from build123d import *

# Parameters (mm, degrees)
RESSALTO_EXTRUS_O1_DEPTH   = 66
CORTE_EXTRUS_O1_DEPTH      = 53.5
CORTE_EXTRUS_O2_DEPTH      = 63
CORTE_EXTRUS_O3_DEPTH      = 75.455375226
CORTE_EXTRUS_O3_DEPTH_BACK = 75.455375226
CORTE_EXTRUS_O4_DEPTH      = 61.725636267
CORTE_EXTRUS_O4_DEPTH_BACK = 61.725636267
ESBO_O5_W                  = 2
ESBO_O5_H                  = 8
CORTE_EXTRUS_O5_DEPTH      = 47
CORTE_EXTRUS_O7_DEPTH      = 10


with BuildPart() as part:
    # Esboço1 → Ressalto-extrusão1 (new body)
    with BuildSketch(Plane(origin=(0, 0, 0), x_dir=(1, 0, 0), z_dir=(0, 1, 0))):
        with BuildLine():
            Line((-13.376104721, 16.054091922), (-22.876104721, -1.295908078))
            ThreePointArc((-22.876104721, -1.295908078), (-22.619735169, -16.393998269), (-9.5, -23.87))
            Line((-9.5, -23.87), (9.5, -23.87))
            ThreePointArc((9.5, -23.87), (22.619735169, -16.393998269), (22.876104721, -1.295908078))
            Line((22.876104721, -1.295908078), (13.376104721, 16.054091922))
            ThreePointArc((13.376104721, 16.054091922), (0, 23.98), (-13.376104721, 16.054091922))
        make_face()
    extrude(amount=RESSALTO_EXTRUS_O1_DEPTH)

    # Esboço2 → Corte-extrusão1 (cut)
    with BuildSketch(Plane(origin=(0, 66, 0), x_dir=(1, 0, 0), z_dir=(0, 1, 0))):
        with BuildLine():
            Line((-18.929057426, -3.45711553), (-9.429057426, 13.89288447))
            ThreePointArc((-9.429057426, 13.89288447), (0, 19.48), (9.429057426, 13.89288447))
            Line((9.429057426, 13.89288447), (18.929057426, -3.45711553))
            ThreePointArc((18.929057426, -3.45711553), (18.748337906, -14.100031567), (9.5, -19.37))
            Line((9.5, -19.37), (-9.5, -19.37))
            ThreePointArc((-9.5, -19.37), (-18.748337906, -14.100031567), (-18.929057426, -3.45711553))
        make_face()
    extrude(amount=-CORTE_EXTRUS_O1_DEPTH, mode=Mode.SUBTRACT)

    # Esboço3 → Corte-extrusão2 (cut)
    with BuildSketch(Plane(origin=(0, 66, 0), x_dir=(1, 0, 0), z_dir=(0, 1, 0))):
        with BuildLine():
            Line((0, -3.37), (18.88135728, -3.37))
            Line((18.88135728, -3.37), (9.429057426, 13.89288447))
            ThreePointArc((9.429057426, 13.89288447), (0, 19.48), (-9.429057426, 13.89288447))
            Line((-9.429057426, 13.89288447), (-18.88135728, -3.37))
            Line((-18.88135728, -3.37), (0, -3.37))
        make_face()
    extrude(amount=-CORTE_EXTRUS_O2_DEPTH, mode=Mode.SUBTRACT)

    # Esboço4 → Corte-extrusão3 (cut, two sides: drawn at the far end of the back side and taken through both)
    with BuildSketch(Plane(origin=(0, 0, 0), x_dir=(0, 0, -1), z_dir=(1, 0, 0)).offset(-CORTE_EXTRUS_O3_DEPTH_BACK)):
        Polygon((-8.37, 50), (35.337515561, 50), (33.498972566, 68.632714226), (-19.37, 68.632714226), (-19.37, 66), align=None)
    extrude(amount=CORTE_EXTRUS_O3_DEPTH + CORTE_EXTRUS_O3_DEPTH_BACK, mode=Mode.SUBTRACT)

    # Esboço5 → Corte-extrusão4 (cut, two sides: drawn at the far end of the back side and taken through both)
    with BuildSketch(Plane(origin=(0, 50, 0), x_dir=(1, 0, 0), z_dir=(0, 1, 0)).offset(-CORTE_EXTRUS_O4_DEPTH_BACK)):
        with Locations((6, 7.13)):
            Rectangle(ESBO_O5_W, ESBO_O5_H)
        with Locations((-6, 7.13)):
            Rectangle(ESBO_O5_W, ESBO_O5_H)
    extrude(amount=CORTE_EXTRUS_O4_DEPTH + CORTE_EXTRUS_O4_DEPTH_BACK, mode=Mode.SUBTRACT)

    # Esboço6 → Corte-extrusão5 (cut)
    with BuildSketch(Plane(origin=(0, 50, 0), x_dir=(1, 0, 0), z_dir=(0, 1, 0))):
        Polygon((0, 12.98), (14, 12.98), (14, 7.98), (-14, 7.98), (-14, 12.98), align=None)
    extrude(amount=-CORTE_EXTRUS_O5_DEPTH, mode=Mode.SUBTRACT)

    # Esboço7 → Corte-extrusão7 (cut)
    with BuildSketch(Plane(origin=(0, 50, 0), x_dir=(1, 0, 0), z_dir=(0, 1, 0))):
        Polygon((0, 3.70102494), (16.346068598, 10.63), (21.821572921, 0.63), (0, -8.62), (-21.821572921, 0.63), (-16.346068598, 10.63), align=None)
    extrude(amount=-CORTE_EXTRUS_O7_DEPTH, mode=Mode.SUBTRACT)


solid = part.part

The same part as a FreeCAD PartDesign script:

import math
import FreeCAD as App
import Part
import Sketcher
from FreeCAD import Vector
Q = App.Units.Quantity


def add_polygon(sketch, points):
    """Adds a closed chain of lines whose ends are joined by coincident constraints."""
    first, n = sketch.GeometryCount, len(points)
    for a, b in zip(points, points[1:] + points[:1]):
        sketch.addGeometry(Part.LineSegment(App.Vector(*a, 0), App.Vector(*b, 0)), False)
    for i in range(n):
        sketch.addConstraint(Sketcher.Constraint("Coincident", first + i, 2, first + (i + 1) % n, 1))

doc = App.newDocument("Part")
body = doc.addObject("PartDesign::Body", "Body")

sketch1 = doc.addObject("Sketcher::SketchObject", "Sketch")
body.addObject(sketch1)
sketch1.AttachmentSupport = (doc.XZ_Plane, [""])
sketch1.MapMode = "FlatFace"
sketch1.addGeometry([
    Part.LineSegment(Vector(-13, -16, 0), Vector(-23, 1, 0)),
    Part.ArcOfCircle(Part.Circle(Vector(-10, 9, 0), Vector(0, 0, 1), 15), math.radians(90), math.radians(209)),
    Part.LineSegment(Vector(-10, 24, 0), Vector(10, 24, 0)),
    Part.ArcOfCircle(Part.Circle(Vector(10, 9, 0), Vector(0, 0, 1), 15), math.radians(-29), math.radians(90)),
    Part.LineSegment(Vector(23, 1, 0), Vector(13, -16, 0)),
    Part.ArcOfCircle(Part.Circle(Vector(0, -9, 0), Vector(0, 0, 1), 15), math.radians(-151), math.radians(-29)),
], False)
sketch1.addConstraint([
    Sketcher.Constraint("Tangent", 0, 2, 1, 2),
    Sketcher.Constraint("Tangent", 1, 1, 2, 1),
    Sketcher.Constraint("Tangent", 2, 2, 3, 2),
    Sketcher.Constraint("Tangent", 3, 1, 4, 1),
    Sketcher.Constraint("Tangent", 4, 2, 5, 2),
    Sketcher.Constraint("Tangent", 5, 1, 0, 1),
    Sketcher.Constraint("Horizontal", 2),
    Sketcher.Constraint("Equal", 1, 3),
    Sketcher.Constraint("Equal", 3, 5),
    Sketcher.Constraint("Symmetric", 0, 2, 3, 1, -2),
    Sketcher.Constraint("DistanceX", 2, 1, 2, 2, Q("19 mm")),
    Sketcher.Constraint("Radius", 1, Q("15.25 mm")),
    Sketcher.Constraint("DistanceY", 5, 3, 1, 1, Q("32.6 mm")),
    Sketcher.Constraint("DistanceY", -1, 1, 1, 3, Q("8.62 mm")),
])
pad1 = doc.addObject("PartDesign::Pad", "Pad")
body.addObject(pad1)
pad1.Profile = sketch1
pad1.Length = 66
pad1.Reversed = True

sketch2 = doc.addObject("Sketcher::SketchObject", "Sketch001")
body.addObject(sketch2)
sketch2.AttachmentSupport = (doc.XZ_Plane, [""])
sketch2.MapMode = "FlatFace"
sketch2.AttachmentOffset = App.Placement(Vector(0, 0, -66), App.Rotation())
sketch2.addGeometry([
    Part.LineSegment(Vector(-9, -14, 0), Vector(-19, 3, 0)),
    Part.ArcOfCircle(Part.Circle(Vector(-10, 9, 0), Vector(0, 0, 1), 11), math.radians(90), math.radians(209)),
    Part.LineSegment(Vector(-10, 19, 0), Vector(10, 19, 0)),
    Part.ArcOfCircle(Part.Circle(Vector(10, 9, 0), Vector(0, 0, 1), 11), math.radians(-29), math.radians(90)),
    Part.LineSegment(Vector(19, 3, 0), Vector(9, -14, 0)),
    Part.ArcOfCircle(Part.Circle(Vector(0, -9, 0), Vector(0, 0, 1), 11), math.radians(-151), math.radians(-29)),
], False)
sketch2.addConstraint([
    Sketcher.Constraint("Tangent", 0, 2, 1, 2),
    Sketcher.Constraint("Tangent", 1, 1, 2, 1),
    Sketcher.Constraint("Tangent", 2, 2, 3, 2),
    Sketcher.Constraint("Tangent", 3, 1, 4, 1),
    Sketcher.Constraint("Tangent", 4, 2, 5, 2),
    Sketcher.Constraint("Tangent", 5, 1, 0, 1),
    Sketcher.Constraint("Horizontal", 2),
    Sketcher.Constraint("Equal", 1, 3),
    Sketcher.Constraint("Equal", 3, 5),
    Sketcher.Constraint("Symmetric", 0, 2, 3, 1, -2),
    Sketcher.Constraint("DistanceX", 2, 1, 2, 2, Q("19 mm")),
    Sketcher.Constraint("Radius", 1, Q("10.75 mm")),
    Sketcher.Constraint("DistanceY", 5, 3, 1, 1, Q("28.1 mm")),
    Sketcher.Constraint("DistanceY", -1, 1, 1, 3, Q("8.62 mm")),
])
pocket1 = doc.addObject("PartDesign::Pocket", "Pocket")
body.addObject(pocket1)
pocket1.Profile = sketch2
pocket1.Length = 53.5
pocket1.Reversed = True

sketch3 = doc.addObject("Sketcher::SketchObject", "Sketch002")
body.addObject(sketch3)
sketch3.AttachmentSupport = (doc.XZ_Plane, [""])
sketch3.MapMode = "FlatFace"
sketch3.AttachmentOffset = App.Placement(Vector(0, 0, -66), App.Rotation())
sketch3.addGeometry([
    Part.LineSegment(Vector(19, 3, 0), Vector(9, -14, 0)),
    Part.ArcOfCircle(Part.Circle(Vector(0, -9, 0), Vector(0, 0, 1), 11), math.radians(-151), math.radians(-29)),
    Part.LineSegment(Vector(-9, -14, 0), Vector(-19, 3, 0)),
    Part.LineSegment(Vector(-19, 3, 0), Vector(19, 3, 0)),
], False)
sketch3.addConstraint([
    Sketcher.Constraint("Tangent", 0, 2, 1, 2),
    Sketcher.Constraint("Tangent", 1, 1, 2, 1),
    Sketcher.Constraint("Coincident", 2, 2, 3, 1),
    Sketcher.Constraint("Coincident", 3, 2, 0, 1),
    Sketcher.Constraint("Horizontal", 3),
    Sketcher.Constraint("Symmetric", 0, 2, 1, 1, -2),
    Sketcher.Constraint("Radius", 1, Q("10.75 mm")),
    Sketcher.Constraint("DistanceY", 1, 3, 2, 2, Q("12.1 mm")),
    Sketcher.Constraint("DistanceY", 1, 3, -1, 1, Q("8.73 mm")),
    Sketcher.Constraint("DistanceX", 2, 2, 1, 1, Q("9.4523 mm")),
])
pocket2 = doc.addObject("PartDesign::Pocket", "Pocket001")
body.addObject(pocket2)
pocket2.Profile = sketch3
pocket2.Length = 63
pocket2.Reversed = True

sketch4 = doc.addObject("Sketcher::SketchObject", "Sketch003")
body.addObject(sketch4)
sketch4.AttachmentSupport = (doc.YZ_Plane, [""])
sketch4.MapMode = "FlatFace"
add_polygon(sketch4, [(50, 8.4), (50, -35.3), (68.6, -33.5), (68.6, 19.4), (66, 19.4)])
sketch4.addConstraint([
    Sketcher.Constraint("Vertical", 0),
    Sketcher.Constraint("Vertical", 2),
    Sketcher.Constraint("Horizontal", 3),
    Sketcher.Constraint("DistanceX", -1, 1, 0, 2, Q("50 mm")),
    Sketcher.Constraint("DistanceX", -1, 1, 3, 2, Q("66 mm")),
    Sketcher.Constraint("DistanceY", 4, 2, 3, 2, Q("11 mm")),
    Sketcher.Constraint("DistanceY", -1, 1, 2, 2, Q("19.37 mm")),
    Sketcher.Constraint("Distance", 1, Q("18.723202 mm")),
    Sketcher.Constraint("DistanceX", 3, 2, 3, 1, Q("2.632714 mm")),
    Sketcher.Constraint("DistanceY", 0, 2, 0, 1, Q("43.707516 mm")),
])
pocket3 = doc.addObject("PartDesign::Pocket", "Pocket002")
body.addObject(pocket3)
pocket3.Profile = sketch4
pocket3.Type = "ThroughAll"
pocket3.Midplane = True

sketch5 = doc.addObject("Sketcher::SketchObject", "Sketch004")
body.addObject(sketch5)
sketch5.AttachmentSupport = (doc.XZ_Plane, [""])
sketch5.MapMode = "FlatFace"
sketch5.AttachmentOffset = App.Placement(Vector(0, 0, -50), App.Rotation())
add_polygon(sketch5, [(5, -11.1), (5, -3.1), (7, -3.1), (7, -11.1)])
add_polygon(sketch5, [(-7, -11.1), (-7, -3.1), (-5, -3.1), (-5, -11.1)])
sketch5.addConstraint([
    Sketcher.Constraint("Vertical", 0),
    Sketcher.Constraint("Horizontal", 1),
    Sketcher.Constraint("Vertical", 2),
    Sketcher.Constraint("Horizontal", 3),
    Sketcher.Constraint("Vertical", 4),
    Sketcher.Constraint("Horizontal", 5),
    Sketcher.Constraint("Vertical", 6),
    Sketcher.Constraint("Horizontal", 7),
    Sketcher.Constraint("Symmetric", 1, 2, 4, 2, -2),
    Sketcher.Constraint("Symmetric", 3, 2, 6, 2, -2),
    Sketcher.Constraint("DistanceX", 1, 1, 1, 2, Q("2 mm")),
    Sketcher.Constraint("DistanceY", 0, 1, 0, 2, Q("8 mm")),
    Sketcher.Constraint("DistanceX", -1, 1, 0, 2, Q("5 mm")),
    Sketcher.Constraint("DistanceY", 0, 2, -1, 1, Q("3.13 mm")),
])
pocket4 = doc.addObject("PartDesign::Pocket", "Pocket003")
body.addObject(pocket4)
pocket4.Profile = sketch5
pocket4.Type = "ThroughAll"
pocket4.Midplane = True

sketch6 = doc.addObject("Sketcher::SketchObject", "Sketch005")
body.addObject(sketch6)
sketch6.AttachmentSupport = (doc.XZ_Plane, [""])
sketch6.MapMode = "FlatFace"
sketch6.AttachmentOffset = App.Placement(Vector(0, 0, -50), App.Rotation())
add_polygon(sketch6, [(14, -13), (-14, -13), (-14, -8), (14, -8)])
sketch6.addConstraint([
    Sketcher.Constraint("Horizontal", 0),
    Sketcher.Constraint("Vertical", 1),
    Sketcher.Constraint("Horizontal", 2),
    Sketcher.Constraint("Vertical", 3),
    Sketcher.Constraint("DistanceX", 0, 2, 0, 1, Q("28 mm")),
    Sketcher.Constraint("DistanceY", 1, 1, 1, 2, Q("5 mm")),
    Sketcher.Constraint("DistanceX", 0, 2, -1, 1, Q("14 mm")),
    Sketcher.Constraint("DistanceY", 0, 2, -1, 1, Q("12.98 mm")),
])
pocket5 = doc.addObject("PartDesign::Pocket", "Pocket004")
body.addObject(pocket5)
pocket5.Profile = sketch6
pocket5.Length = 47
pocket5.Reversed = True

sketch7 = doc.addObject("Sketcher::SketchObject", "Sketch006")
body.addObject(sketch7)
sketch7.AttachmentSupport = (doc.XZ_Plane, [""])
sketch7.MapMode = "FlatFace"
sketch7.AttachmentOffset = App.Placement(Vector(0, 0, -50), App.Rotation())
add_polygon(sketch7, [(16, -11), (0, -4), (-16, -11), (-22, -1), (0, 9), (22, -1)])
sketch7.addConstraint([
    Sketcher.Constraint("Symmetric", 2, 2, 4, 2, -2),
    Sketcher.Constraint("Symmetric", 1, 2, 5, 2, -2),
    Sketcher.Constraint("PointOnObject", 0, 2, -2),
    Sketcher.Constraint("PointOnObject", 3, 2, -2),
    Sketcher.Constraint("Parallel", 1, 3),
    Sketcher.Constraint("DistanceY", 1, 2, 2, 2, Q("10 mm")),
    Sketcher.Constraint("DistanceY", 1, 2, -1, 1, Q("10.63 mm")),
    Sketcher.Constraint("DistanceY", -1, 1, 3, 2, Q("8.62 mm")),
    Sketcher.Constraint("Distance", 3, Q("23.70113 mm")),
    Sketcher.Constraint("DistanceX", 1, 2, -1, 1, Q("16.346069 mm")),
])
pocket6 = doc.addObject("PartDesign::Pocket", "Pocket005")
body.addObject(pocket6)
pocket6.Profile = sketch7
pocket6.Length = 10
pocket6.Reversed = True

doc.recompute()
